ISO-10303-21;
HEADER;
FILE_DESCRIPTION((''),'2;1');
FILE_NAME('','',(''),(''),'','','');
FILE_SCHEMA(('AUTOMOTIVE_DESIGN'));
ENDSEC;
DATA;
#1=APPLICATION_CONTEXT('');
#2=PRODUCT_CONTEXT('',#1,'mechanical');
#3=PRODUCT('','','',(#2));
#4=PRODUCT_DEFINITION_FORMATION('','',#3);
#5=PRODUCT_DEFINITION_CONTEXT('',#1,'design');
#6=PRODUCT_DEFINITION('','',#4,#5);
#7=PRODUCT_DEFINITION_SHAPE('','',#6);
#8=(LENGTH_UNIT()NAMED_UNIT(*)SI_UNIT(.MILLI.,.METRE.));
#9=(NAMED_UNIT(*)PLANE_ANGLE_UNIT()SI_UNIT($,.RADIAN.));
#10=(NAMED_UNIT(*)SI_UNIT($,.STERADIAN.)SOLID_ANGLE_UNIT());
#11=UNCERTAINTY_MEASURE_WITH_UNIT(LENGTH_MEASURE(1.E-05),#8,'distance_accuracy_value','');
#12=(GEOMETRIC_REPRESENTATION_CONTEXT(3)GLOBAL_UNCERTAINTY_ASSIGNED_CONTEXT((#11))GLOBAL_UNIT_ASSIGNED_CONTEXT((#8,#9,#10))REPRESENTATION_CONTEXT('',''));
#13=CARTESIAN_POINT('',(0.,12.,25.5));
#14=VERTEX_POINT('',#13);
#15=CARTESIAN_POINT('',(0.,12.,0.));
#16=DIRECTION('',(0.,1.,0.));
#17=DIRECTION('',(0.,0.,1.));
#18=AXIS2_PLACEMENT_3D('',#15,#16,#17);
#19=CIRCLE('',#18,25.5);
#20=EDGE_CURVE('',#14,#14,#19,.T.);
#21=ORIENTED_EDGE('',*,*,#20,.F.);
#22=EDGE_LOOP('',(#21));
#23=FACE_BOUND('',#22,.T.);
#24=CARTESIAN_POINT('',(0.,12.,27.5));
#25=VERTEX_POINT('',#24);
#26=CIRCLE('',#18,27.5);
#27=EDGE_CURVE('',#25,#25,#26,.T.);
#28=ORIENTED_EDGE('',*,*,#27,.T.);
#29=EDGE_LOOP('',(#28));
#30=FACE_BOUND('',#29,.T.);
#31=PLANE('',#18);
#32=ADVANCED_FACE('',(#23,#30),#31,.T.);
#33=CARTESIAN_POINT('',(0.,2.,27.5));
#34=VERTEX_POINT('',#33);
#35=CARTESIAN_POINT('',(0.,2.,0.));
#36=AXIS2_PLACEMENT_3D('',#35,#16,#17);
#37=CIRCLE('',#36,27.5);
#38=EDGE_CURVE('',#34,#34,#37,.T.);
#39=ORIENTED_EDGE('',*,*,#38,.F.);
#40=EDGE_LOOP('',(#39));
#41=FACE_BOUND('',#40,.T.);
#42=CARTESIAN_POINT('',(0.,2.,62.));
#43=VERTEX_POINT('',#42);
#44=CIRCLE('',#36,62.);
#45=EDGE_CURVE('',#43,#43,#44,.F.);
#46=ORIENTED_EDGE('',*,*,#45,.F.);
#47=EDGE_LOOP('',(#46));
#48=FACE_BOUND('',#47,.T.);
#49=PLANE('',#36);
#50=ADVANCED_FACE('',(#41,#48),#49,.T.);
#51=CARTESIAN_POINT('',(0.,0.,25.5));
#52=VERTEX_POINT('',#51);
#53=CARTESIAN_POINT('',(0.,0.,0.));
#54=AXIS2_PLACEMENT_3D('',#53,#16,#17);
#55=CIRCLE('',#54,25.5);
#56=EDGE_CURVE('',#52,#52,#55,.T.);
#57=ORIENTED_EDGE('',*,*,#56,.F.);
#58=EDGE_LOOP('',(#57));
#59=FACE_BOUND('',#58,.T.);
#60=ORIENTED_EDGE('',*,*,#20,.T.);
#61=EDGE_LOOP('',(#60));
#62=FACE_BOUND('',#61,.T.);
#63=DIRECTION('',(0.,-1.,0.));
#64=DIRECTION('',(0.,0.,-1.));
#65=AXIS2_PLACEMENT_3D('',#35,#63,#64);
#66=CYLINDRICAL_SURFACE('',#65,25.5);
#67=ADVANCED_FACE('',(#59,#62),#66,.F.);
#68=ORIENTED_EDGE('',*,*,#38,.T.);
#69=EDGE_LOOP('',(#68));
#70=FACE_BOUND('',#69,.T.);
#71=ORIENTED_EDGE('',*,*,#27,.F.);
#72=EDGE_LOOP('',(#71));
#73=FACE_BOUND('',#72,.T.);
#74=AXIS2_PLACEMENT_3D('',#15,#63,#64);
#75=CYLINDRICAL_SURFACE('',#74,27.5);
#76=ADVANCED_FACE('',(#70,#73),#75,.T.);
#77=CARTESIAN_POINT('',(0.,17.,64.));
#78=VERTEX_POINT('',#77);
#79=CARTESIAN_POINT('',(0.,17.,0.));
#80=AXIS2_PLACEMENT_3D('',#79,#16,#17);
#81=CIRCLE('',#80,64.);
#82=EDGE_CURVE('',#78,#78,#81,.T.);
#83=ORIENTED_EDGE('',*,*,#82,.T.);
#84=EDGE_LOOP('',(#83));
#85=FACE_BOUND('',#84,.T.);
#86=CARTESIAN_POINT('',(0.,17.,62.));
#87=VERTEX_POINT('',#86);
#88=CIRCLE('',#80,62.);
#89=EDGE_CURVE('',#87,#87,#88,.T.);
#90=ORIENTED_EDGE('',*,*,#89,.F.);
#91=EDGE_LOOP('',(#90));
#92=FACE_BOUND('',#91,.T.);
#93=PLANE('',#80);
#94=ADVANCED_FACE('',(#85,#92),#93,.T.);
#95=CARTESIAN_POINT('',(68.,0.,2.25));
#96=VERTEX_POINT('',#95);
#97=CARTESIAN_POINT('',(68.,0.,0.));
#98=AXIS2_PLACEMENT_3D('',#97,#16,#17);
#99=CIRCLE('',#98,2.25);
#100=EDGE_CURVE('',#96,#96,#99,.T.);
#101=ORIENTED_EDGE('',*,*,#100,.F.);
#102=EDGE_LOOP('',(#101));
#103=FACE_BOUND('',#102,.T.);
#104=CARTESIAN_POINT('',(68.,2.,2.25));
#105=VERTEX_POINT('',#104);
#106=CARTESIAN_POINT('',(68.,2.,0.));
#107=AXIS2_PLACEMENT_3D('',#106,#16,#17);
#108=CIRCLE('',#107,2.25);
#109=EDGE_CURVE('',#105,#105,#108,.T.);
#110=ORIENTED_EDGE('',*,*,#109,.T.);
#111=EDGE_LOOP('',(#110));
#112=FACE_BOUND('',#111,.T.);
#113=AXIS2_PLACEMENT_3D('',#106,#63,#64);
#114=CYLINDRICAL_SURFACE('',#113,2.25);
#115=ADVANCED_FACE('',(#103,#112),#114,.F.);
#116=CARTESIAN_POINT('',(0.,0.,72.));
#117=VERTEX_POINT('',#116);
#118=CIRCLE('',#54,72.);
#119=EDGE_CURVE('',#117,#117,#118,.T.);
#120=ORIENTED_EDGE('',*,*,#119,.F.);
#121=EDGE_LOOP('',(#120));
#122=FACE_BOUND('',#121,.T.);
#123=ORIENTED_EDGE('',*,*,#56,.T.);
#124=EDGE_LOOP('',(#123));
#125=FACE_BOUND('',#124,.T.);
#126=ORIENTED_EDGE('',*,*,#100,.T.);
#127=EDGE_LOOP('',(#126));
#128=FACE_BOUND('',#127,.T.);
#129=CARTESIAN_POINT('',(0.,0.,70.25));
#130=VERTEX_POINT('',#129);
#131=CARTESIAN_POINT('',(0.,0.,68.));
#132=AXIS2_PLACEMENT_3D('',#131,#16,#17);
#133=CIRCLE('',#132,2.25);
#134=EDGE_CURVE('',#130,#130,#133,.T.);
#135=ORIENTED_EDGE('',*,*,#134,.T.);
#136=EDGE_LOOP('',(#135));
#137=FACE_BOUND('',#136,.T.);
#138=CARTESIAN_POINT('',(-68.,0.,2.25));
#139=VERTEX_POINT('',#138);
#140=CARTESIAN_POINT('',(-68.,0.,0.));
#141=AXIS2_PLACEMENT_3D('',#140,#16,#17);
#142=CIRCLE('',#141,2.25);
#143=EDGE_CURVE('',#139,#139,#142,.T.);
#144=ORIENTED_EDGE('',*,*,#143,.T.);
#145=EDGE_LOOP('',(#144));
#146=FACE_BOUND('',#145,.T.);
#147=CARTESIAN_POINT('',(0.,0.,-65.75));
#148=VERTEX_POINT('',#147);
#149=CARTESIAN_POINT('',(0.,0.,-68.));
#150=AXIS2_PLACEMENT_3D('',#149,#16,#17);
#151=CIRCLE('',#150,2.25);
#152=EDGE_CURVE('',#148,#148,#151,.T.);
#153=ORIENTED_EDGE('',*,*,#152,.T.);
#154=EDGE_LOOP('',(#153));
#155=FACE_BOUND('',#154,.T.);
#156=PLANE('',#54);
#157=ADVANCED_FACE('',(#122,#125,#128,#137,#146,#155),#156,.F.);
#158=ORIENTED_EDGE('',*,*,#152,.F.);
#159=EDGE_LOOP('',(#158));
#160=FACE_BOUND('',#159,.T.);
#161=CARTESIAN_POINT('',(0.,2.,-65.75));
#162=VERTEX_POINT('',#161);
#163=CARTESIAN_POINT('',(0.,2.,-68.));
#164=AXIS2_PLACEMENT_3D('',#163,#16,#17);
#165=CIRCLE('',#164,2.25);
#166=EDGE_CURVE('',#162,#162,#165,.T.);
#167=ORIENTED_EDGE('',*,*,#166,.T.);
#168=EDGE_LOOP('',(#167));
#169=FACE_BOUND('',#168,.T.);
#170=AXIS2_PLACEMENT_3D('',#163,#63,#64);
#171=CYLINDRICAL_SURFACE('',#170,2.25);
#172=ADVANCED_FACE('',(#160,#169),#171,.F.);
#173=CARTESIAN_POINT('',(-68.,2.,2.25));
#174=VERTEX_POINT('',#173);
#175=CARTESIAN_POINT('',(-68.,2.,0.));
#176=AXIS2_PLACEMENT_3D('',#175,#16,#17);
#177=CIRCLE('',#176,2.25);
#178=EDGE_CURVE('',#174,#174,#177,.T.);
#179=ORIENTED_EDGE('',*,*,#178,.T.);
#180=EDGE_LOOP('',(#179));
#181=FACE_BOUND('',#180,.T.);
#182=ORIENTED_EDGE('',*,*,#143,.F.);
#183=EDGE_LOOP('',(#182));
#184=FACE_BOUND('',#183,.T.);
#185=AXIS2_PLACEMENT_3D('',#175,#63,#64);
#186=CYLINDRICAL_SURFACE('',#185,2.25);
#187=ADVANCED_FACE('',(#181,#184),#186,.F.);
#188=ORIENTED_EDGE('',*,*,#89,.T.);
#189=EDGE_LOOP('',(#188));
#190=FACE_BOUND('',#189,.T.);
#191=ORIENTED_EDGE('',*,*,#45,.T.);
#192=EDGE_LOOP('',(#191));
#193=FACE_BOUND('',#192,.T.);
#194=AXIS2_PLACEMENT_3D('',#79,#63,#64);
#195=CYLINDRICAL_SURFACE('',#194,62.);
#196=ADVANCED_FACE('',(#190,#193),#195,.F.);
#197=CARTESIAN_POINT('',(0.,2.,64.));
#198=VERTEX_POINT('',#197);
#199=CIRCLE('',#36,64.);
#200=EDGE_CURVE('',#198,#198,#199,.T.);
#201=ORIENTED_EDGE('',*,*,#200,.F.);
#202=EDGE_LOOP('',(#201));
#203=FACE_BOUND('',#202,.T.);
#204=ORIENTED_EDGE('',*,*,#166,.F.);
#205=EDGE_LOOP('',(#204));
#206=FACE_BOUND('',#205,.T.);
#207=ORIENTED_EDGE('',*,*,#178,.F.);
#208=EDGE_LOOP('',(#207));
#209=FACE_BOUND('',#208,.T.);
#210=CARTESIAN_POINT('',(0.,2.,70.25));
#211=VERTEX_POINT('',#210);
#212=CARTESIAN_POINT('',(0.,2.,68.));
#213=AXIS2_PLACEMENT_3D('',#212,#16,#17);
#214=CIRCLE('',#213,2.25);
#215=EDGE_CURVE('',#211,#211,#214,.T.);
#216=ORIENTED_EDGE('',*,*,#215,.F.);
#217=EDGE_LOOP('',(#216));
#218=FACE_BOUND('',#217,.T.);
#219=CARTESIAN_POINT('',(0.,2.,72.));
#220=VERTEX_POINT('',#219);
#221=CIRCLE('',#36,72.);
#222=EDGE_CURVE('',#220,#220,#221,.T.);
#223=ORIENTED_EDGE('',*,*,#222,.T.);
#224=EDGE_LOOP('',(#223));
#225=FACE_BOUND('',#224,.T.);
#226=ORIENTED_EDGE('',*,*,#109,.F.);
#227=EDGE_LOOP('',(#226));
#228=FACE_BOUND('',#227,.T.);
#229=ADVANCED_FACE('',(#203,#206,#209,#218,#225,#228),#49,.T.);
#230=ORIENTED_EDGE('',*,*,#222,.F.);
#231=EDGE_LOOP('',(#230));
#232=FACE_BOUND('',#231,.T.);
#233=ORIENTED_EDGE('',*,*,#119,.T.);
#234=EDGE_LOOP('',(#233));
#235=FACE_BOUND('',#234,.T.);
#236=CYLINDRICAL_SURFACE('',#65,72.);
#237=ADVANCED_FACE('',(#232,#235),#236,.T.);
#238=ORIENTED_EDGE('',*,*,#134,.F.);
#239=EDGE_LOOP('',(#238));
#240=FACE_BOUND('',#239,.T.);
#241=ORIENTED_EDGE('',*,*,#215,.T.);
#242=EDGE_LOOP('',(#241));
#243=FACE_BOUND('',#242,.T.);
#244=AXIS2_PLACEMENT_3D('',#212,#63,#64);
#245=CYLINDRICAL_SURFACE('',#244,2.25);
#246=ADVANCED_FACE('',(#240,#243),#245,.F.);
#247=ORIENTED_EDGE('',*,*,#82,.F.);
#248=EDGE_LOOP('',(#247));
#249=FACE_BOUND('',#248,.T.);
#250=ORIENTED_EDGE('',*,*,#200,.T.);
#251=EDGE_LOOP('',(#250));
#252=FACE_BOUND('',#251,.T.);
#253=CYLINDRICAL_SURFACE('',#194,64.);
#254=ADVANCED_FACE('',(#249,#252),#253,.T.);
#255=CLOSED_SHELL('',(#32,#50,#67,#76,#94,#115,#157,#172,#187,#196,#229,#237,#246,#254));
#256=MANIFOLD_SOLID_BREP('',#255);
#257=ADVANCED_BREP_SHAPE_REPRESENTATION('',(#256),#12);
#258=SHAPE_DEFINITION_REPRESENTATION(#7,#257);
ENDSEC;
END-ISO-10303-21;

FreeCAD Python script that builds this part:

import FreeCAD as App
import Part
import Sketcher

V = App.Vector

doc = App.newDocument("Part")
body = doc.addObject("PartDesign::Body", "Body")

sketch1 = body.newObject("Sketcher::SketchObject", "Sketch")
sketch1.AttachmentSupport = (doc.getObject("XZ_Plane"), [""])
sketch1.MapMode = "FlatFace"
sketch1.addGeometry(Part.Circle(V(0, 0, 0), V(0, 0, 1), 72), False)
sketch1.addGeometry(Part.Circle(V(0, -68, 0), V(0, 0, 1), 2.2), False)
sketch1.addGeometry(Part.Circle(V(-68, 0, 0), V(0, 0, 1), 2.2), False)
sketch1.addGeometry(Part.Circle(V(68, 0, 0), V(0, 0, 1), 2.2), False)
sketch1.addGeometry(Part.Circle(V(0, 0, 0), V(0, 0, 1), 25.5), False)
sketch1.addGeometry(Part.Circle(V(0, 68, 0), V(0, 0, 1), 2.2), False)
sketch1.addConstraint(Sketcher.Constraint("Coincident", 0, 3, -1, 1))
sketch1.addConstraint(Sketcher.Constraint("Coincident", 4, 3, -1, 1))
sketch1.addConstraint(Sketcher.Constraint("Equal", 1, 2))
sketch1.addConstraint(Sketcher.Constraint("Equal", 2, 3))
sketch1.addConstraint(Sketcher.Constraint("Equal", 3, 5))
sketch1.addConstraint(Sketcher.Constraint("Symmetric", 2, 3, 3, 3, -1, 1))
sketch1.addConstraint(Sketcher.Constraint("Symmetric", 1, 3, 5, 3, -1, 1))
sketch1.addConstraint(Sketcher.Constraint("PointOnObject", 1, 3, -2))
sketch1.addConstraint(Sketcher.Constraint("PointOnObject", 2, 3, -1))
sketch1.addConstraint(Sketcher.Constraint("Diameter", 0, 144.0))
sketch1.addConstraint(Sketcher.Constraint("Diameter", 4, 51.0))
sketch1.addConstraint(Sketcher.Constraint("Diameter", 1, 4.5))
sketch1.addConstraint(Sketcher.Constraint("DistanceY", 1, 3, -1, 1, 68.0))
sketch1.addConstraint(Sketcher.Constraint("DistanceX", 2, 3, -1, 1, 68.0))
pad1 = body.newObject("PartDesign::Pad", "Pad")
pad1.Profile = sketch1
pad1.Length = 2
pad1.Reversed = True

sketch2 = body.newObject("Sketcher::SketchObject", "Sketch001")
sketch2.AttachmentSupport = (doc.getObject("XZ_Plane"), [""])
sketch2.MapMode = "FlatFace"
sketch2.AttachmentOffset = App.Placement(V(0, 0, -2), App.Rotation())
sketch2.addGeometry(Part.Circle(V(0, 0, 0), V(0, 0, 1), 28), False)
sketch2.addGeometry(Part.Circle(V(0, 0, 0), V(0, 0, 1), 26), False)
sketch2.addConstraint(Sketcher.Constraint("Coincident", 0, 3, -1, 1))
sketch2.addConstraint(Sketcher.Constraint("Coincident", 1, 3, -1, 1))
sketch2.addConstraint(Sketcher.Constraint("Diameter", 0, 55.0))
sketch2.addConstraint(Sketcher.Constraint("Diameter", 1, 51.0))
pad2 = body.newObject("PartDesign::Pad", "Pad001")
pad2.Profile = sketch2
pad2.Length = 10
pad2.Reversed = True

sketch3 = body.newObject("Sketcher::SketchObject", "Sketch002")
sketch3.AttachmentSupport = (doc.getObject("XZ_Plane"), [""])
sketch3.MapMode = "FlatFace"
sketch3.AttachmentOffset = App.Placement(V(0, 0, -2), App.Rotation())
sketch3.addGeometry(Part.Circle(V(0, 0, 0), V(0, 0, 1), 64), False)
sketch3.addGeometry(Part.Circle(V(0, 0, 0), V(0, 0, 1), 62), False)
sketch3.addConstraint(Sketcher.Constraint("Coincident", 0, 3, -1, 1))
sketch3.addConstraint(Sketcher.Constraint("Coincident", 1, 3, -1, 1))
sketch3.addConstraint(Sketcher.Constraint("Diameter", 0, 128.0))
sketch3.addConstraint(Sketcher.Constraint("Diameter", 1, 124.0))
pad3 = body.newObject("PartDesign::Pad", "Pad002")
pad3.Profile = sketch3
pad3.Length = 15
pad3.Reversed = True

doc.recompute()
